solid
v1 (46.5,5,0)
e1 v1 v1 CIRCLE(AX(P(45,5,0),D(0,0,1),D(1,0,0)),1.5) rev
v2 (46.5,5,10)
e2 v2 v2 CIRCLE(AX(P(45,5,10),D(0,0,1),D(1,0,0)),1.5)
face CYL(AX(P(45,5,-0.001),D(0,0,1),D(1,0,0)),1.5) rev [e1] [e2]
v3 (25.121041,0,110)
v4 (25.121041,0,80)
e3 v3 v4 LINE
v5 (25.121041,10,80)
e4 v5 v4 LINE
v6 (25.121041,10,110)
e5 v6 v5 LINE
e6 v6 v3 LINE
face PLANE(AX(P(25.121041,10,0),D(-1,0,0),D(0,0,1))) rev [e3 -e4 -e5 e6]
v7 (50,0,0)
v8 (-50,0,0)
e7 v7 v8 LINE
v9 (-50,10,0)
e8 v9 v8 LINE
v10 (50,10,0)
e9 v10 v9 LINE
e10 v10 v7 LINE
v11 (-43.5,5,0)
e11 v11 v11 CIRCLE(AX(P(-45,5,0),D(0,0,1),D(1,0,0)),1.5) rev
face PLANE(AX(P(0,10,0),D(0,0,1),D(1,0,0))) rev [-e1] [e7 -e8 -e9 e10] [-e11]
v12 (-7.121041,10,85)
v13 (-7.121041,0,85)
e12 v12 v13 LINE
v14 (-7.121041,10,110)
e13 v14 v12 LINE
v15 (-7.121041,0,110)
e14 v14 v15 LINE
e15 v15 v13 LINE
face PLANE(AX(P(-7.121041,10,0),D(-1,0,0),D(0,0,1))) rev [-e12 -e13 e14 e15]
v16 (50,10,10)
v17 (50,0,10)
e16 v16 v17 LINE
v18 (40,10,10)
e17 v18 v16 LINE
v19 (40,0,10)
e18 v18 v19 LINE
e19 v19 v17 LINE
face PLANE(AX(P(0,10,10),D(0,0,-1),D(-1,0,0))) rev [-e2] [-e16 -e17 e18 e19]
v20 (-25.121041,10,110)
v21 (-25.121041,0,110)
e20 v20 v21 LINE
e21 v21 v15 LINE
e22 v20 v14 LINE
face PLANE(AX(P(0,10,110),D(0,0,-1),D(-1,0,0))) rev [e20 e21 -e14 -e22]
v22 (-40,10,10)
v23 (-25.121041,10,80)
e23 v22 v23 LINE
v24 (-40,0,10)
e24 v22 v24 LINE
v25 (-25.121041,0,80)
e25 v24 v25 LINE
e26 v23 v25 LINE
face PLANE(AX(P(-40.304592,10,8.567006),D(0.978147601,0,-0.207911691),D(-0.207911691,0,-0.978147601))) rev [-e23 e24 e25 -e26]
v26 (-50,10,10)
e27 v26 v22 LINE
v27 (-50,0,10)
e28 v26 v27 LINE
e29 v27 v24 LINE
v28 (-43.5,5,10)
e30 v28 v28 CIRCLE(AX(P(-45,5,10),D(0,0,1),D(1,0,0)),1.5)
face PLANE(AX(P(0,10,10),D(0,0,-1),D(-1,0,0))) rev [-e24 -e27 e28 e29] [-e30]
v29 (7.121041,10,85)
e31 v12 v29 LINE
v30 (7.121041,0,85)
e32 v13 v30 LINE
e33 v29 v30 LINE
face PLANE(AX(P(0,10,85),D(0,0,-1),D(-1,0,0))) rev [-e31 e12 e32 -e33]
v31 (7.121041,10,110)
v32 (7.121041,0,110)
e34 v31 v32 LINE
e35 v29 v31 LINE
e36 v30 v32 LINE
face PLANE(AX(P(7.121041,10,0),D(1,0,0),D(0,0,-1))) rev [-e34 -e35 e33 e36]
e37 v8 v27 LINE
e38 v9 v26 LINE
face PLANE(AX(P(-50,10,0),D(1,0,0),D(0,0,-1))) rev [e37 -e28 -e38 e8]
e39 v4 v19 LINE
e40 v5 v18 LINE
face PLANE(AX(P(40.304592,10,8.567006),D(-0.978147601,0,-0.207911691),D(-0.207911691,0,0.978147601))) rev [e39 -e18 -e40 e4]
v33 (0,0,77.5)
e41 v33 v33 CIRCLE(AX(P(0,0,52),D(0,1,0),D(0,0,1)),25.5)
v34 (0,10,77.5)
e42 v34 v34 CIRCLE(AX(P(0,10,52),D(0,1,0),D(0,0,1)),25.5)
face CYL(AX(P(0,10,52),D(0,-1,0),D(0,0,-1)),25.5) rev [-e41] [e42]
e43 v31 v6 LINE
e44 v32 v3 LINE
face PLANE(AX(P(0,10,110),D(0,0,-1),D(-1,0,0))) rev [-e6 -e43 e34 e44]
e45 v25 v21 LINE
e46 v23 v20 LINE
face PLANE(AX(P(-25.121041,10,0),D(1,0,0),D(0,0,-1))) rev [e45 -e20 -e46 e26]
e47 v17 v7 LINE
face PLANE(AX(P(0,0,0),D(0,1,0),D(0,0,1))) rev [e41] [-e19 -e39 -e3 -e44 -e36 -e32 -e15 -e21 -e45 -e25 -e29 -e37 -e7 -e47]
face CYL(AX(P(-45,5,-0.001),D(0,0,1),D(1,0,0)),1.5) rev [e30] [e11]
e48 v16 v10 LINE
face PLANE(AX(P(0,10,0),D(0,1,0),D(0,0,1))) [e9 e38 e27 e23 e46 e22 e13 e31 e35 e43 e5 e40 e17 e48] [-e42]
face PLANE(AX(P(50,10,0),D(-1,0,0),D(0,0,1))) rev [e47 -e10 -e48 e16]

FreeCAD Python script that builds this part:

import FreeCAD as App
import Part
import Sketcher
from FreeCAD import Vector
Q = App.Units.Quantity


def add_polygon(sketch, points):
    """Adds a closed chain of lines whose ends are joined by coincident constraints."""
    first, n = sketch.GeometryCount, len(points)
    for a, b in zip(points, points[1:] + points[:1]):
        sketch.addGeometry(Part.LineSegment(App.Vector(*a, 0), App.Vector(*b, 0)), False)
    for i in range(n):
        sketch.addConstraint(Sketcher.Constraint("Coincident", first + i, 2, first + (i + 1) % n, 1))

doc = App.newDocument("Part")
body = doc.addObject("PartDesign::Body", "Body")

# Sketch on XZ plane
sketch1 = body.newObject("Sketcher::SketchObject", "Sketch")
sketch1.AttachmentSupport = (doc.getObject("XZ_Plane"), [""])
sketch1.MapMode = "FlatFace"
add_polygon(sketch1, [(40, 10), (50, 10), (50, 0), (-50, 0), (-50, 10), (-40, 10), (-25, 80), (-25, 110), (-7, 110), (-7, 85), (7, 85), (7, 110), (25, 110), (25, 80)])  # lines 0-13
sketch1.addGeometry(Part.Circle(Vector(0, 52, 0), Vector(0, 0, 1), 26), False)  # 14
sketch1.addConstraint(Sketcher.Constraint("Horizontal", 0))
sketch1.addConstraint(Sketcher.Constraint("Vertical", 1))
sketch1.addConstraint(Sketcher.Constraint("Horizontal", 2))
sketch1.addConstraint(Sketcher.Constraint("Vertical", 3))
sketch1.addConstraint(Sketcher.Constraint("Horizontal", 4))
sketch1.addConstraint(Sketcher.Constraint("Vertical", 6))
sketch1.addConstraint(Sketcher.Constraint("Horizontal", 7))
sketch1.addConstraint(Sketcher.Constraint("Vertical", 8))
sketch1.addConstraint(Sketcher.Constraint("Horizontal", 9))
sketch1.addConstraint(Sketcher.Constraint("Vertical", 10))
sketch1.addConstraint(Sketcher.Constraint("Horizontal", 11))
sketch1.addConstraint(Sketcher.Constraint("Vertical", 12))
sketch1.addConstraint(Sketcher.Constraint("Symmetric", 1, 2, 2, 2, -1, 1))
sketch1.addConstraint(Sketcher.Constraint("Symmetric", 7, 2, 10, 2, -2))
sketch1.addConstraint(Sketcher.Constraint("Symmetric", 5, 2, 12, 2, -2))
sketch1.addConstraint(Sketcher.Constraint("Symmetric", 4, 2, 13, 2, -2))
sketch1.addConstraint(Sketcher.Constraint("PointOnObject", 14, 3, -2))
sketch1.addConstraint(Sketcher.Constraint("Equal", 4, 1))
sketch1.addConstraint(Sketcher.Constraint("Diameter", 14, Q("51 mm")))
sketch1.addConstraint(Sketcher.Constraint("DistanceX", 0, 1, 0, 2, Q("10 mm")))
sketch1.addConstraint(Sketcher.Constraint("DistanceX", 2, 2, 2, 1, Q("100 mm")))
sketch1.addConstraint(Sketcher.Constraint("DistanceX", 7, 1, 7, 2, Q("18 mm")))
sketch1.addConstraint(Sketcher.Constraint("DistanceY", 6, 1, 6, 2, Q("30 mm")))
sketch1.addConstraint(Sketcher.Constraint("DistanceY", 8, 2, 8, 1, Q("25 mm")))
sketch1.addConstraint(Sketcher.Constraint("Angle", 5, Q("78 deg")))
sketch1.addConstraint(Sketcher.Constraint("DistanceY", -1, 1, 14, 3, Q("52 mm")))
sketch1.addConstraint(Sketcher.Constraint("DistanceY", -1, 1, 5, 2, Q("80 mm")))
pad1 = body.newObject("PartDesign::Pad", "Pad")
pad1.Profile = sketch1
pad1.Length = 10
pad1.Reversed = True

# Sketch on XY plane
sketch2 = body.newObject("Sketcher::SketchObject", "Sketch001")
sketch2.AttachmentSupport = (doc.getObject("XY_Plane"), [""])
sketch2.MapMode = "FlatFace"
sketch2.AttachmentOffset = App.Placement(Vector(0, 0, 10), App.Rotation())
sketch2.addGeometry(Part.Circle(Vector(-45, 5, 0), Vector(0, 0, 1), 1.5), False)
sketch2.addConstraint(Sketcher.Constraint("Diameter", 0, Q("3 mm")))
sketch2.addConstraint(Sketcher.Constraint("DistanceX", 0, 3, -1, 1, Q("45 mm")))
sketch2.addConstraint(Sketcher.Constraint("DistanceY", -1, 1, 0, 3, Q("5 mm")))
pocket1 = body.newObject("PartDesign::Pocket", "Pocket")
pocket1.Profile = sketch2
pocket1.Type = "UpToFirst"

# Sketch on XY plane
sketch3 = body.newObject("Sketcher::SketchObject", "Sketch002")
sketch3.AttachmentSupport = (doc.getObject("XY_Plane"), [""])
sketch3.MapMode = "FlatFace"
sketch3.AttachmentOffset = App.Placement(Vector(0, 0, 10), App.Rotation())
sketch3.addGeometry(Part.Circle(Vector(45, 5, 0), Vector(0, 0, 1), 1.5), False)
sketch3.addConstraint(Sketcher.Constraint("Diameter", 0, Q("3 mm")))
sketch3.addConstraint(Sketcher.Constraint("DistanceX", -1, 1, 0, 3, Q("45 mm")))
sketch3.addConstraint(Sketcher.Constraint("DistanceY", -1, 1, 0, 3, Q("5 mm")))
pocket2 = body.newObject("PartDesign::Pocket", "Pocket001")
pocket2.Profile = sketch3
pocket2.Type = "UpToFirst"

doc.recompute()
